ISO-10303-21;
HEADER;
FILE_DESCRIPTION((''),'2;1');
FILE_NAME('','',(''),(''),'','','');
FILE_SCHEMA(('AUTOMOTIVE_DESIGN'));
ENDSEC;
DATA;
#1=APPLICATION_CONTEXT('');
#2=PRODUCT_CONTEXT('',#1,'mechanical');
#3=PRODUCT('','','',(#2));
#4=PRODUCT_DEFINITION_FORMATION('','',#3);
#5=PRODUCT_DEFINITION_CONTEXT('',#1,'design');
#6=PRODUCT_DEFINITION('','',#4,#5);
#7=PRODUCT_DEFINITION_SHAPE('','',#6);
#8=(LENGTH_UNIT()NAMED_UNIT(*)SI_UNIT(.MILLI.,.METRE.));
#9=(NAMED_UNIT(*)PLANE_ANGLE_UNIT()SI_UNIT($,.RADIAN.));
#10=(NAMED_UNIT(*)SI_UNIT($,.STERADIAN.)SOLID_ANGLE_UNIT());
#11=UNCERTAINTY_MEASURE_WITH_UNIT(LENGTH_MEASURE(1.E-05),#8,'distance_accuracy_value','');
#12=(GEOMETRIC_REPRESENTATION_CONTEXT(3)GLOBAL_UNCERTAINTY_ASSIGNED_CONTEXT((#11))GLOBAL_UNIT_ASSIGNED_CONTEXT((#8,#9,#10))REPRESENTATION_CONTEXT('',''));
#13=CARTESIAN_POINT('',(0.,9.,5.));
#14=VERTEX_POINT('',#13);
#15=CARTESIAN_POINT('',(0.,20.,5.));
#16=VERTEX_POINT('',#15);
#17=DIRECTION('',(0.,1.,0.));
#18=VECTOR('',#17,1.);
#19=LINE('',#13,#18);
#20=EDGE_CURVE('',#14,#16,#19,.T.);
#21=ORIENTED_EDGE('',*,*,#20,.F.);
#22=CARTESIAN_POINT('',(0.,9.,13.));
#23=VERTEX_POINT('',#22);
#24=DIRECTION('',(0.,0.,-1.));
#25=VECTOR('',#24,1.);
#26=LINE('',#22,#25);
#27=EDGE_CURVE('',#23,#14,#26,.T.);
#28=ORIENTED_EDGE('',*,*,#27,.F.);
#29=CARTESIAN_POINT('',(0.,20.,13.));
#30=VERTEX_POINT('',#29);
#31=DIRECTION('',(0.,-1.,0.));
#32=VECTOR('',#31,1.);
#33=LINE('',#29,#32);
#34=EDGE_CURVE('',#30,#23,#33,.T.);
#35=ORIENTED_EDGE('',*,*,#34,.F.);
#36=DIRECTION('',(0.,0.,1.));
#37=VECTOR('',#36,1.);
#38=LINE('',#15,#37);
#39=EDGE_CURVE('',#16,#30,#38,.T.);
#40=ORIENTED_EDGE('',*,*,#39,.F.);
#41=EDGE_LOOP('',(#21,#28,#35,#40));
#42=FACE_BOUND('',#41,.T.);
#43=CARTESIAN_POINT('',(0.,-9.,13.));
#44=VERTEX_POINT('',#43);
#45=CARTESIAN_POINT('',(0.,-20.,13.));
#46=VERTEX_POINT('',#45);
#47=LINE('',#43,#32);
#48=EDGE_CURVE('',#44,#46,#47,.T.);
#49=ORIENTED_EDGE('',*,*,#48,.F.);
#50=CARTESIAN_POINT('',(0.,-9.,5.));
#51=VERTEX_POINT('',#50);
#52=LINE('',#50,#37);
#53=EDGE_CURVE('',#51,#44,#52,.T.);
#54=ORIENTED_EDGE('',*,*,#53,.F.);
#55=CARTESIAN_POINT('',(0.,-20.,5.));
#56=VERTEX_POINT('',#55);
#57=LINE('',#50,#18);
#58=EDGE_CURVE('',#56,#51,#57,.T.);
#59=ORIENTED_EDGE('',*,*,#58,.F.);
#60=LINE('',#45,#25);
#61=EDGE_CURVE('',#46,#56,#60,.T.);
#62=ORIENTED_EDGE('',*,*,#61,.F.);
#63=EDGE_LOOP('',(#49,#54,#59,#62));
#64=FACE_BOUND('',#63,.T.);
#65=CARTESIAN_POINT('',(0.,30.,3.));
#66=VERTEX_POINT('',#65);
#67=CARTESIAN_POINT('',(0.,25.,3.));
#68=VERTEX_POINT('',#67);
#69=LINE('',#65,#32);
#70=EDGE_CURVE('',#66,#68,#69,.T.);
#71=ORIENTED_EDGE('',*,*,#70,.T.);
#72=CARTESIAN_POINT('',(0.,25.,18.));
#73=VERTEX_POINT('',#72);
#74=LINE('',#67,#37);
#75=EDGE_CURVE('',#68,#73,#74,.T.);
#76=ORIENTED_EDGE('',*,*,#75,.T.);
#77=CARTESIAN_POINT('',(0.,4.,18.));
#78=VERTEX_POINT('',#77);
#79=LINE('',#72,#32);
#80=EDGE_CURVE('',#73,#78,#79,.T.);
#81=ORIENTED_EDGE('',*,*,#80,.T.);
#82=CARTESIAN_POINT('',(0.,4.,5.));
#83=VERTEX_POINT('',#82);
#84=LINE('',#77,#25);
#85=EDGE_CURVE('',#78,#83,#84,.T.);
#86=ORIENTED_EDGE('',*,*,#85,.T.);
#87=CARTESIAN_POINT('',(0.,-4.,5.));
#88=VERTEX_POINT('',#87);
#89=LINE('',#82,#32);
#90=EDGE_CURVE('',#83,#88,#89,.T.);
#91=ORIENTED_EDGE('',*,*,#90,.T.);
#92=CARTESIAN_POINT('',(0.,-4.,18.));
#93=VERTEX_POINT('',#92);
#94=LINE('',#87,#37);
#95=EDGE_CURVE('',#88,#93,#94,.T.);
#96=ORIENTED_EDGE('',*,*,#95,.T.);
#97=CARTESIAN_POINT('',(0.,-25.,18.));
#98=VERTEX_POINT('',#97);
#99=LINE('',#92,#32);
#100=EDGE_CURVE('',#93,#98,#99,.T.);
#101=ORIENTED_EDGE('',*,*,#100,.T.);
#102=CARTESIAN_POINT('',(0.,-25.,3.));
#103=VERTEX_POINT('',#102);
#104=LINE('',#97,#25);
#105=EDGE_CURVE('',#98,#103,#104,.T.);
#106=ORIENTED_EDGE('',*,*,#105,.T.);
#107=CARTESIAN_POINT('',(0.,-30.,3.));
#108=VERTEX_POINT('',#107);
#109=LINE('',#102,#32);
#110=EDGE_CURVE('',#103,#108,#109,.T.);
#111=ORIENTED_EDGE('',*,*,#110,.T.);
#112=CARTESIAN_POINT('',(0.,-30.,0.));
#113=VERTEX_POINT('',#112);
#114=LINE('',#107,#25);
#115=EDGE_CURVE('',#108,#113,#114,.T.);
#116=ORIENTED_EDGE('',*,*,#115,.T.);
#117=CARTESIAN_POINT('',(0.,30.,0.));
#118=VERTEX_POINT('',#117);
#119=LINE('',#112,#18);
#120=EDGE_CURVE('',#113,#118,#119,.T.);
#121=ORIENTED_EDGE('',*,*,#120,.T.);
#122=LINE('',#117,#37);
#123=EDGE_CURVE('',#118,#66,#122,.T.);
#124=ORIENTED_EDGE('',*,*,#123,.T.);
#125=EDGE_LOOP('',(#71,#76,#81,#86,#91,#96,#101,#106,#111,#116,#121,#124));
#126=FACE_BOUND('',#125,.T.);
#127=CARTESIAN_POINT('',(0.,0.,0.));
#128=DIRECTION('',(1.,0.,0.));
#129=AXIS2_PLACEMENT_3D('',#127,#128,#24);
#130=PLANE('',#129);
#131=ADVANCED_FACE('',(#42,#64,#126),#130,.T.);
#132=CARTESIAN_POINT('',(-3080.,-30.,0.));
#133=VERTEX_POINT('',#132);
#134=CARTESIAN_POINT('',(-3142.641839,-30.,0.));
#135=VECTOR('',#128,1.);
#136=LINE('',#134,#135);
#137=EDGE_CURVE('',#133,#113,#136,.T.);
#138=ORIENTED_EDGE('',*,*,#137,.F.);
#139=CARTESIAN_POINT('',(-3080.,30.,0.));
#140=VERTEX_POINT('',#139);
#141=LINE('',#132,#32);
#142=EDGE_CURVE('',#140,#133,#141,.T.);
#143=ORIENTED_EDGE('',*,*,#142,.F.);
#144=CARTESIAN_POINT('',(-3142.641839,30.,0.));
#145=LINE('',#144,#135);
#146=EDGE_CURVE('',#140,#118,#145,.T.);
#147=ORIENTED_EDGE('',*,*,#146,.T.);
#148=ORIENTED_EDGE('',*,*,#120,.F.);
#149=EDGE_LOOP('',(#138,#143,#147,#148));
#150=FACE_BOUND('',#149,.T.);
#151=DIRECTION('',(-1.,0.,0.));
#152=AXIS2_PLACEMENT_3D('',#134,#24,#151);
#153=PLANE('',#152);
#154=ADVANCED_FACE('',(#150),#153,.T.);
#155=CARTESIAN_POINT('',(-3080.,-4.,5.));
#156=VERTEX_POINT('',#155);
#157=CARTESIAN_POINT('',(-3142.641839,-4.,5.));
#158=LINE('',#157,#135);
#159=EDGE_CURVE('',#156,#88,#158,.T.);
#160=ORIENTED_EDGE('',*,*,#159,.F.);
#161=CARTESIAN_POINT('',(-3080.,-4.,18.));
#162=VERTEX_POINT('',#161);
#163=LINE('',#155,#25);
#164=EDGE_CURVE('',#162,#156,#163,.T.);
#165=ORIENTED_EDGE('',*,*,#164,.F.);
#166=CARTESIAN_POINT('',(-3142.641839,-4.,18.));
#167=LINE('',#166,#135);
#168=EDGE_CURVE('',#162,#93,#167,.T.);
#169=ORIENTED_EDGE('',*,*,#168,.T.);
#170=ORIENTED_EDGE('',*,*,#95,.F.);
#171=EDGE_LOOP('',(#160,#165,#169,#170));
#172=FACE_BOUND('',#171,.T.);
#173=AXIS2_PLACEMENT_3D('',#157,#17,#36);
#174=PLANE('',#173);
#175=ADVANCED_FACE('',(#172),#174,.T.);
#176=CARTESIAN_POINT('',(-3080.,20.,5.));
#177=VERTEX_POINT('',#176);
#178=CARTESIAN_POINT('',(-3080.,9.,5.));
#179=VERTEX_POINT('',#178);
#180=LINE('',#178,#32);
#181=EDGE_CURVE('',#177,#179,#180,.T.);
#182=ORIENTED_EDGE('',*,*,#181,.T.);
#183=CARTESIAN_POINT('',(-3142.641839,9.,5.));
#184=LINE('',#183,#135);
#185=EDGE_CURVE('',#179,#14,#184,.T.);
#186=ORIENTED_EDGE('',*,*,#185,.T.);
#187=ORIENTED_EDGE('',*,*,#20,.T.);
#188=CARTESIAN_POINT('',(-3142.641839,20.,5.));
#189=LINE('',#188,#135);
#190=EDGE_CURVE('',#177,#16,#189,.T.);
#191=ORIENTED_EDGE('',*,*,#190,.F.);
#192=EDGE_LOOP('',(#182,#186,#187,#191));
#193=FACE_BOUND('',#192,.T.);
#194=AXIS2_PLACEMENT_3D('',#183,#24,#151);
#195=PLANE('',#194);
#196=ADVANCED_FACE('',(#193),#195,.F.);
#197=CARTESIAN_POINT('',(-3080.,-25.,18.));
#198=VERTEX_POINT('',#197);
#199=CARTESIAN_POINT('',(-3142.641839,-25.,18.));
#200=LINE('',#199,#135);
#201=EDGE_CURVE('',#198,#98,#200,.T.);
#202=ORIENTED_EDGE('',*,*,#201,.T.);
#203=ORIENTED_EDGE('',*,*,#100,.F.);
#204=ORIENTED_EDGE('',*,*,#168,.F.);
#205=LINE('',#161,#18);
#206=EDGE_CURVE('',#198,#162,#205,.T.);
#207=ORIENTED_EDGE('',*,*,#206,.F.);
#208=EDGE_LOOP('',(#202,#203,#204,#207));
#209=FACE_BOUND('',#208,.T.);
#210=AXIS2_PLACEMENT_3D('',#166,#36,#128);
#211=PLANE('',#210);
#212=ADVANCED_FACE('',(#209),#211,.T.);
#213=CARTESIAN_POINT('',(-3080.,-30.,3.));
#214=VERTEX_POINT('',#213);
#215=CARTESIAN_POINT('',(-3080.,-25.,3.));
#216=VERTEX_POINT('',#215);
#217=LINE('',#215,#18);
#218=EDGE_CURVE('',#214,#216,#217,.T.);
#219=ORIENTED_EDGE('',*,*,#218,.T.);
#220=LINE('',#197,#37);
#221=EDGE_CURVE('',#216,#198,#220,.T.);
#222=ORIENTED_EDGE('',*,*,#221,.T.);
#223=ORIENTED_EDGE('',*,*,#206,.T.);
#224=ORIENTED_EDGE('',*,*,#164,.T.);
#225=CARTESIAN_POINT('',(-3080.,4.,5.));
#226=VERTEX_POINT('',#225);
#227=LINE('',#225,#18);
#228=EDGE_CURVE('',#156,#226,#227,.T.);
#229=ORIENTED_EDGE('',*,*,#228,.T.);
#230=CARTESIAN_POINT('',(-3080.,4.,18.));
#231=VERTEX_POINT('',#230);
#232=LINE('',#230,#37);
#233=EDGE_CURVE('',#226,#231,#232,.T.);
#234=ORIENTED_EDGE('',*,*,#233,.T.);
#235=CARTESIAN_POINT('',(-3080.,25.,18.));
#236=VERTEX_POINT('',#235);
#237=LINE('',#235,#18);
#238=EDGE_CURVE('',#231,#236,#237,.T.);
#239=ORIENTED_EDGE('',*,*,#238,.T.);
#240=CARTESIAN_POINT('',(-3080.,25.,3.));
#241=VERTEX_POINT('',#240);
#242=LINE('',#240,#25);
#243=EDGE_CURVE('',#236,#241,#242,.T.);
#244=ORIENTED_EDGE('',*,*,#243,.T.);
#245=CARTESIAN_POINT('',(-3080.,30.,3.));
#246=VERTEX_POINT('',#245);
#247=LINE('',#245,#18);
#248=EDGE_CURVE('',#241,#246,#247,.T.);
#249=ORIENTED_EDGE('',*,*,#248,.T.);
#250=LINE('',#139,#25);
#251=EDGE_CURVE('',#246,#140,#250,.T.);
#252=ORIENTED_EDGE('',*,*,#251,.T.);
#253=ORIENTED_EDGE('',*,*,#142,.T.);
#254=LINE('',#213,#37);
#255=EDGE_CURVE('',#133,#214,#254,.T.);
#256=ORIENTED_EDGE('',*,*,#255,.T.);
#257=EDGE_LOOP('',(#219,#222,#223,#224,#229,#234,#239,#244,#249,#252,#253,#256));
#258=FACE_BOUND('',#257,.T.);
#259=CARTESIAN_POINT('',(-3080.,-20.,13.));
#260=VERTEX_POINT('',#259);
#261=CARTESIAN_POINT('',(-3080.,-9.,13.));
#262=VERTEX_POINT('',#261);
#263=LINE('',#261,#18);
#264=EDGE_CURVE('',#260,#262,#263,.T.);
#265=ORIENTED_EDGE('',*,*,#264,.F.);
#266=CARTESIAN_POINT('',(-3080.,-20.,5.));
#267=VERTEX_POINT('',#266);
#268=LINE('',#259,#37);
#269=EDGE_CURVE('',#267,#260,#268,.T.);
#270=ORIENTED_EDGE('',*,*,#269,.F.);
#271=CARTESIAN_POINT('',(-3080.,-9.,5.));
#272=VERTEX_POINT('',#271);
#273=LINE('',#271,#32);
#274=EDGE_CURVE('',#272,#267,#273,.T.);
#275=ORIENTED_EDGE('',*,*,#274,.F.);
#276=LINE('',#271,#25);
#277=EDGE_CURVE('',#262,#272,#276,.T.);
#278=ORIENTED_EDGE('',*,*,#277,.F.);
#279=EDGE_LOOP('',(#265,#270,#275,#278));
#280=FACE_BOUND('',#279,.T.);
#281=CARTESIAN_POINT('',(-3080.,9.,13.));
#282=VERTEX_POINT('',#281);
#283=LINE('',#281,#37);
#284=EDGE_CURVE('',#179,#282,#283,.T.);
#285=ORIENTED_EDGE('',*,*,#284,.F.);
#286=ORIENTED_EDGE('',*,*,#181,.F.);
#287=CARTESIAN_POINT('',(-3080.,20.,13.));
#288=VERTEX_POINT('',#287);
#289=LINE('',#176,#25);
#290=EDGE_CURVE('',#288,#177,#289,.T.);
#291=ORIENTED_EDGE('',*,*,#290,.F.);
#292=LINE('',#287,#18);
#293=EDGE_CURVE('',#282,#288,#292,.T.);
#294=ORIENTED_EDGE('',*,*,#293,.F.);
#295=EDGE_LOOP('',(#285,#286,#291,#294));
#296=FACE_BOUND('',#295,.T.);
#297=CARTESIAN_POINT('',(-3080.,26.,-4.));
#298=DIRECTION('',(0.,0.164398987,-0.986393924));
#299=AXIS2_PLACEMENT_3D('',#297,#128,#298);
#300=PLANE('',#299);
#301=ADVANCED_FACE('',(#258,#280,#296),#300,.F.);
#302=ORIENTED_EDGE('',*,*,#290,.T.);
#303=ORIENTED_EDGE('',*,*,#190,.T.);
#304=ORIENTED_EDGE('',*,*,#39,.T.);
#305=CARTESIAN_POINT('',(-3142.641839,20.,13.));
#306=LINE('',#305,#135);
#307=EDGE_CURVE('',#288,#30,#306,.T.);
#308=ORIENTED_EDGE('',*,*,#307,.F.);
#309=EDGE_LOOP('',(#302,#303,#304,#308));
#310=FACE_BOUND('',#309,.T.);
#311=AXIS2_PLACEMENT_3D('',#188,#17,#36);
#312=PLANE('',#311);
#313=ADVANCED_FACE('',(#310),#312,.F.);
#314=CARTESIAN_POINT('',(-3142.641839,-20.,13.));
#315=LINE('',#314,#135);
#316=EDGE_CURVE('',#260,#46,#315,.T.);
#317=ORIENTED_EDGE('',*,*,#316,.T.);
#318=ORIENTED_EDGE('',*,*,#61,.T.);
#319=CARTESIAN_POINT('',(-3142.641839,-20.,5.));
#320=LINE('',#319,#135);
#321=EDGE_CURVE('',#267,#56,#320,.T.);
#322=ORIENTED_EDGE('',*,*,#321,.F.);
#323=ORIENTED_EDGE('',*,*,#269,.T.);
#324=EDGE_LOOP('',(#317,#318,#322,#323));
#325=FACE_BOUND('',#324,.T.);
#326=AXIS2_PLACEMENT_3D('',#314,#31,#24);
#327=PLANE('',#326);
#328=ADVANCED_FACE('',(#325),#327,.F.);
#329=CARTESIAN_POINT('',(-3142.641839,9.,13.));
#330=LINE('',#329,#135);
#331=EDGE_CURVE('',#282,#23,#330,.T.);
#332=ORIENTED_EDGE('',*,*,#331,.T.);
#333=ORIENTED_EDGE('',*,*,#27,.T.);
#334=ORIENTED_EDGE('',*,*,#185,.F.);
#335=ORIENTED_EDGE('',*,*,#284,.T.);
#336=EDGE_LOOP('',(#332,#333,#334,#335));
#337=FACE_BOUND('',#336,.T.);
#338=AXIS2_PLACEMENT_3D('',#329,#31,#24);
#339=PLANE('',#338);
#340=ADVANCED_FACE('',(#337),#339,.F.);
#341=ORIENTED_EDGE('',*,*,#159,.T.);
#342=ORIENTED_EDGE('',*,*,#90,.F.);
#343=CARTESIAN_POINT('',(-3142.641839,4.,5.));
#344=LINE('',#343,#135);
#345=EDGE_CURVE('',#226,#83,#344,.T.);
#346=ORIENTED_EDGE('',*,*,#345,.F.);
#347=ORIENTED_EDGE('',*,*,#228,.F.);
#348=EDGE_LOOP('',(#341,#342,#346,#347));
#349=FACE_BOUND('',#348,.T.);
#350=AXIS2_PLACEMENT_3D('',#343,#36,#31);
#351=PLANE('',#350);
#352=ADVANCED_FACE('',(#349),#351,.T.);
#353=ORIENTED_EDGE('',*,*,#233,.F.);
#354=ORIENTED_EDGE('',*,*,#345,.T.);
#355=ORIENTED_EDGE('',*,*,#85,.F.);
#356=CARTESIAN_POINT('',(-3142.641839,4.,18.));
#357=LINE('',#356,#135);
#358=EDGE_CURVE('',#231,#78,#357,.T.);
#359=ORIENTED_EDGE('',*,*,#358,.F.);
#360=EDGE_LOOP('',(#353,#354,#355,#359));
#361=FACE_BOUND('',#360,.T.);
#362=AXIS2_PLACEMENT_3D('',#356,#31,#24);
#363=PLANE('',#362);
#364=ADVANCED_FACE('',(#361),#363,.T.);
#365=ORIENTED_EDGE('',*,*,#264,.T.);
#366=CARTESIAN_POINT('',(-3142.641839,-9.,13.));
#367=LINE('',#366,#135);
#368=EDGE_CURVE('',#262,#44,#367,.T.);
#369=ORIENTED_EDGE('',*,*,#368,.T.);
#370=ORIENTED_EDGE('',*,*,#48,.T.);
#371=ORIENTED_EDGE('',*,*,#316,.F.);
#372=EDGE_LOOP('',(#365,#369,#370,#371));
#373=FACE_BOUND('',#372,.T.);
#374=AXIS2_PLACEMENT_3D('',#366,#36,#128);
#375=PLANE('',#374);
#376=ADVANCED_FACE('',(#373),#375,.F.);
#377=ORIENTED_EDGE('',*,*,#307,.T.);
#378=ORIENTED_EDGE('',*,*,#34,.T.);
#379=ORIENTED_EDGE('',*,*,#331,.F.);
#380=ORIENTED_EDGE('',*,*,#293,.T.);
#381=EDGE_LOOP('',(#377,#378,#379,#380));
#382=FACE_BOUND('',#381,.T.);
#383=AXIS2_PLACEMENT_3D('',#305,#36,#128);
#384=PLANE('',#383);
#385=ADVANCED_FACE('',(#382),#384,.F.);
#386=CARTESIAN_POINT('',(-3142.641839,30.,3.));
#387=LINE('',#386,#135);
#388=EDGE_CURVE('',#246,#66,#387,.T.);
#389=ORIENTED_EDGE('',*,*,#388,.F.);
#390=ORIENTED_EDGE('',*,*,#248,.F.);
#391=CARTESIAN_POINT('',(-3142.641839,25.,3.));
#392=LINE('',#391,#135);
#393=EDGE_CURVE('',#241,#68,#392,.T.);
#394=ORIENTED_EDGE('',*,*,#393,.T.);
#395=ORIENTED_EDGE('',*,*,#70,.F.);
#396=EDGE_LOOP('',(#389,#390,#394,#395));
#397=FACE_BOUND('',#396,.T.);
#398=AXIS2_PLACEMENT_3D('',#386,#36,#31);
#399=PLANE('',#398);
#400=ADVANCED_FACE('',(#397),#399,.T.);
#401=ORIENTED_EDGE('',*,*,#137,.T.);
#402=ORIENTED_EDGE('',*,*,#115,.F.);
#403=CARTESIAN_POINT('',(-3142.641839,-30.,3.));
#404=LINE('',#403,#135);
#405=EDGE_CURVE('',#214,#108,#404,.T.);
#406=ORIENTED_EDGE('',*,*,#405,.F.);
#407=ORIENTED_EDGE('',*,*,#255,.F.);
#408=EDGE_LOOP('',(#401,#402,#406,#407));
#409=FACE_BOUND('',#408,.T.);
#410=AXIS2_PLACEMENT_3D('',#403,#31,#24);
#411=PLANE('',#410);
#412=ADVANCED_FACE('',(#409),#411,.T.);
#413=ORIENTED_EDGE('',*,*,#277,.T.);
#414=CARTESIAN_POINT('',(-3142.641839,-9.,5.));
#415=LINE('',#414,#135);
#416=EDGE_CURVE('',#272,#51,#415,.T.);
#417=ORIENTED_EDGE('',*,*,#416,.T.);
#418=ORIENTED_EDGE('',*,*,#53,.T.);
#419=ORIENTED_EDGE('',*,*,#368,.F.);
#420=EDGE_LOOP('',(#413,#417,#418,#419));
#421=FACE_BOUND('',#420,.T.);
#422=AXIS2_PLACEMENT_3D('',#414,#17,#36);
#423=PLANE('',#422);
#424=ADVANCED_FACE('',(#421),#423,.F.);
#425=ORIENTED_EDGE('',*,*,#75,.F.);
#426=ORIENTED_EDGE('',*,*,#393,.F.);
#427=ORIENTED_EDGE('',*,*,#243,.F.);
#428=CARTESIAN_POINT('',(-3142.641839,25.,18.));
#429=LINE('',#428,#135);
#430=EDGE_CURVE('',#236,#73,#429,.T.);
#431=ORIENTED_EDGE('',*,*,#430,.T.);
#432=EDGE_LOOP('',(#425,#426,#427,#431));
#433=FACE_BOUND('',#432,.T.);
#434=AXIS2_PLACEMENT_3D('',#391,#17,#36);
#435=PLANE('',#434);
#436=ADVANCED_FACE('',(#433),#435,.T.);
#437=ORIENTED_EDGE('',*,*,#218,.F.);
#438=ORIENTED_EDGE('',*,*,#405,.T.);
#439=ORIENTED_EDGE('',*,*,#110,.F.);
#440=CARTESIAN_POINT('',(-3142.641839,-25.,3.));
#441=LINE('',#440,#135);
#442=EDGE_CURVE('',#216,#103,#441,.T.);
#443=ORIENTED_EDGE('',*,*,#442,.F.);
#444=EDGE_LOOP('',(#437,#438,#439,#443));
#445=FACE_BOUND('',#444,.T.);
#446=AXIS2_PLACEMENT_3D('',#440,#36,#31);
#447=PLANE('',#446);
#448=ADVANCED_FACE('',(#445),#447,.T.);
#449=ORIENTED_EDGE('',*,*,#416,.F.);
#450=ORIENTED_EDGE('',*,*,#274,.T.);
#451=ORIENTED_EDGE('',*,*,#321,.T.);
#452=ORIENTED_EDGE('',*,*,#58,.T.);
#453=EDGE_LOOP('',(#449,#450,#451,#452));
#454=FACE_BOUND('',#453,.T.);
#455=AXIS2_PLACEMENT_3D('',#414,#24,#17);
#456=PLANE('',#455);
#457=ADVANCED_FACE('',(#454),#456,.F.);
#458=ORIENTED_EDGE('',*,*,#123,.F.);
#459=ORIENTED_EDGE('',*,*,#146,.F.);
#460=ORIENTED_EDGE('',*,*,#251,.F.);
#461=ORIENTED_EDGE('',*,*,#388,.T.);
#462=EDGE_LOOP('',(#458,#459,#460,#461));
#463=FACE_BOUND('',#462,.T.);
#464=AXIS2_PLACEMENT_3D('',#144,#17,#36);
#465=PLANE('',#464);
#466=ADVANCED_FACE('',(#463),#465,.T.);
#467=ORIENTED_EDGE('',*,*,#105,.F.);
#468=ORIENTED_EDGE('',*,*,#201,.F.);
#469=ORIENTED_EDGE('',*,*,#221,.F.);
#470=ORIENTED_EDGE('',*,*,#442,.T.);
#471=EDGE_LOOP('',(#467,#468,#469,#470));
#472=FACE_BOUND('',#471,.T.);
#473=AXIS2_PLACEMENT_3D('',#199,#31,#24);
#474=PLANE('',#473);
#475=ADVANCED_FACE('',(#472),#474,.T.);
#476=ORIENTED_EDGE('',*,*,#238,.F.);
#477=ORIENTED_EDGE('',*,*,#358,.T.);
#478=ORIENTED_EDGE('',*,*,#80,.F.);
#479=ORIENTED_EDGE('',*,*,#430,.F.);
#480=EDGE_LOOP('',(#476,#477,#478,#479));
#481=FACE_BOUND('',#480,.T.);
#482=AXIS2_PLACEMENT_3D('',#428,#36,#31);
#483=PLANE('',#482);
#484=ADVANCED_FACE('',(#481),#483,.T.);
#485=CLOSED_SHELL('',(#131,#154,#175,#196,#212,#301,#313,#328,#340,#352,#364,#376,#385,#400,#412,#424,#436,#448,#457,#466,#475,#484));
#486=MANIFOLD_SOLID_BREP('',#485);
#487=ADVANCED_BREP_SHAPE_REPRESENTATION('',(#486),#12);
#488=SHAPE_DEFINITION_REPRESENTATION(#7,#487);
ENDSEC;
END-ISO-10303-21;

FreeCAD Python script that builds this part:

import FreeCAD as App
import Part
import Sketcher

V = App.Vector
Q = App.Units.Quantity

doc = App.newDocument("Part")
body = doc.addObject("PartDesign::Body", "Body")

# Sketch on YZ plane
sketch1 = doc.addObject("Sketcher::SketchObject", "Sketch")
body.addObject(sketch1)
sketch1.AttachmentSupport = (doc.YZ_Plane, [""])
sketch1.MapMode = "FlatFace"
sketch1.addGeometry([
    Part.LineSegment(V(-30, 0, 0), V(30, 0, 0)),  # 0
    Part.LineSegment(V(30, 0, 0), V(30, 3, 0)),  # 1
    Part.LineSegment(V(30, 3, 0), V(25, 3, 0)),  # 2
    Part.LineSegment(V(25, 3, 0), V(25, 18, 0)),  # 3
    Part.LineSegment(V(25, 18, 0), V(4, 18, 0)),  # 4
    Part.LineSegment(V(4, 18, 0), V(4, 5, 0)),  # 5
    Part.LineSegment(V(4, 5, 0), V(-4, 5, 0)),  # 6
    Part.LineSegment(V(-4, 5, 0), V(-4, 18, 0)),  # 7
    Part.LineSegment(V(-4, 18, 0), V(-25, 18, 0)),  # 8
    Part.LineSegment(V(-25, 18, 0), V(-25, 3, 0)),  # 9
    Part.LineSegment(V(-25, 3, 0), V(-30, 3, 0)),  # 10
    Part.LineSegment(V(-30, 3, 0), V(-30, 0, 0)),  # 11
    Part.LineSegment(V(-20, 5, 0), V(-20, 13, 0)),  # 12
    Part.LineSegment(V(-20, 13, 0), V(-9, 13, 0)),  # 13
    Part.LineSegment(V(-9, 13, 0), V(-9, 5, 0)),  # 14
    Part.LineSegment(V(-9, 5, 0), V(-20, 5, 0)),  # 15
    Part.LineSegment(V(9, 5, 0), V(9, 13, 0)),  # 16
    Part.LineSegment(V(9, 13, 0), V(20, 13, 0)),  # 17
    Part.LineSegment(V(20, 13, 0), V(20, 5, 0)),  # 18
    Part.LineSegment(V(20, 5, 0), V(9, 5, 0)),  # 19
], False)
sketch1.addConstraint([
    Sketcher.Constraint("Coincident", 0, 2, 1, 1),
    Sketcher.Constraint("Coincident", 1, 2, 2, 1),
    Sketcher.Constraint("Coincident", 2, 2, 3, 1),
    Sketcher.Constraint("Coincident", 3, 2, 4, 1),
    Sketcher.Constraint("Coincident", 4, 2, 5, 1),
    Sketcher.Constraint("Coincident", 5, 2, 6, 1),
    Sketcher.Constraint("Coincident", 6, 2, 7, 1),
    Sketcher.Constraint("Coincident", 7, 2, 8, 1),
    Sketcher.Constraint("Coincident", 8, 2, 9, 1),
    Sketcher.Constraint("Coincident", 9, 2, 10, 1),
    Sketcher.Constraint("Coincident", 10, 2, 11, 1),
    Sketcher.Constraint("Coincident", 11, 2, 0, 1),
    Sketcher.Constraint("Coincident", 12, 2, 13, 1),
    Sketcher.Constraint("Coincident", 13, 2, 14, 1),
    Sketcher.Constraint("Coincident", 14, 2, 15, 1),
    Sketcher.Constraint("Coincident", 15, 2, 12, 1),
    Sketcher.Constraint("Coincident", 16, 2, 17, 1),
    Sketcher.Constraint("Coincident", 17, 2, 18, 1),
    Sketcher.Constraint("Coincident", 18, 2, 19, 1),
    Sketcher.Constraint("Coincident", 19, 2, 16, 1),
    Sketcher.Constraint("Horizontal", 0),
    Sketcher.Constraint("Vertical", 1),
    Sketcher.Constraint("Horizontal", 2),
    Sketcher.Constraint("Vertical", 3),
    Sketcher.Constraint("Horizontal", 4),
    Sketcher.Constraint("Vertical", 5),
    Sketcher.Constraint("Horizontal", 6),
    Sketcher.Constraint("Vertical", 7),
    Sketcher.Constraint("Horizontal", 8),
    Sketcher.Constraint("Vertical", 9),
    Sketcher.Constraint("Horizontal", 10),
    Sketcher.Constraint("Vertical", 11),
    Sketcher.Constraint("Vertical", 12),
    Sketcher.Constraint("Horizontal", 13),
    Sketcher.Constraint("Vertical", 14),
    Sketcher.Constraint("Horizontal", 15),
    Sketcher.Constraint("Vertical", 16),
    Sketcher.Constraint("Horizontal", 17),
    Sketcher.Constraint("Vertical", 18),
    Sketcher.Constraint("Horizontal", 19),
    Sketcher.Constraint("Symmetric", 0, 2, 11, 2, -1, 1),
    Sketcher.Constraint("Symmetric", 4, 2, 7, 2, -2),
    Sketcher.Constraint("Symmetric", 2, 2, 9, 2, -2),
    Sketcher.Constraint("Symmetric", 13, 2, 16, 2, -2),
    Sketcher.Constraint("Symmetric", 15, 2, 18, 2, -2),
    Sketcher.Constraint("Horizontal", 6, 2, 14, 2),
    Sketcher.Constraint("Equal", 6, 12),
    Sketcher.Constraint("DistanceX", 0, 1, 0, 2, Q("60 mm")),
    Sketcher.Constraint("DistanceX", 2, 2, 2, 1, Q("5 mm")),
    Sketcher.Constraint("DistanceX", 4, 2, 4, 1, Q("21 mm")),
    Sketcher.Constraint("DistanceX", 13, 1, 13, 2, Q("11 mm")),
    Sketcher.Constraint("DistanceY", 1, 1, 1, 2, Q("3 mm")),
    Sketcher.Constraint("DistanceY", 3, 1, 3, 2, Q("15 mm")),
    Sketcher.Constraint("DistanceY", 5, 2, 5, 1, Q("13 mm")),
    Sketcher.Constraint("DistanceX", 12, 2, -1, 1, Q("20 mm")),
])
pad1 = doc.addObject("PartDesign::Pad", "Pad")
body.addObject(pad1)
pad1.Profile = sketch1
pad1.Length = 3080
pad1.Reversed = True

doc.recompute()
